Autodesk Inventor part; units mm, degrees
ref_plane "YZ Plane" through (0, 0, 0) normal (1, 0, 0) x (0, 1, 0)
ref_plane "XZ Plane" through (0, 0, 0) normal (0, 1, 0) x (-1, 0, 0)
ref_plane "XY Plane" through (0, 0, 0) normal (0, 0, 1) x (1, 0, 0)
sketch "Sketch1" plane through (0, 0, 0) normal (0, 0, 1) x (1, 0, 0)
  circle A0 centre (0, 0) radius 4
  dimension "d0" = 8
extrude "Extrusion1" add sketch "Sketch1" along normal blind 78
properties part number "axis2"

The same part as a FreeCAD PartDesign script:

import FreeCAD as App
import Part
import Sketcher

V = App.Vector
Q = App.Units.Quantity

doc = App.newDocument("Part")
body = doc.addObject("PartDesign::Body", "Body")

# Sketch on XY plane
sketch1 = doc.addObject("Sketcher::SketchObject", "Sketch")
body.addObject(sketch1)
sketch1.AttachmentSupport = (doc.XY_Plane, [""])
sketch1.MapMode = "FlatFace"
sketch1.addGeometry(Part.Circle(V(0, 0, 0), V(0, 0, 1), 4), False)
sketch1.addConstraint(Sketcher.Constraint("Coincident", 0, 3, -1, 1))
sketch1.addConstraint(Sketcher.Constraint("Diameter", 0, Q("8 mm")))
pad1 = doc.addObject("PartDesign::Pad", "Pad")
body.addObject(pad1)
pad1.Profile = sketch1
pad1.Length = 78

doc.recompute()
